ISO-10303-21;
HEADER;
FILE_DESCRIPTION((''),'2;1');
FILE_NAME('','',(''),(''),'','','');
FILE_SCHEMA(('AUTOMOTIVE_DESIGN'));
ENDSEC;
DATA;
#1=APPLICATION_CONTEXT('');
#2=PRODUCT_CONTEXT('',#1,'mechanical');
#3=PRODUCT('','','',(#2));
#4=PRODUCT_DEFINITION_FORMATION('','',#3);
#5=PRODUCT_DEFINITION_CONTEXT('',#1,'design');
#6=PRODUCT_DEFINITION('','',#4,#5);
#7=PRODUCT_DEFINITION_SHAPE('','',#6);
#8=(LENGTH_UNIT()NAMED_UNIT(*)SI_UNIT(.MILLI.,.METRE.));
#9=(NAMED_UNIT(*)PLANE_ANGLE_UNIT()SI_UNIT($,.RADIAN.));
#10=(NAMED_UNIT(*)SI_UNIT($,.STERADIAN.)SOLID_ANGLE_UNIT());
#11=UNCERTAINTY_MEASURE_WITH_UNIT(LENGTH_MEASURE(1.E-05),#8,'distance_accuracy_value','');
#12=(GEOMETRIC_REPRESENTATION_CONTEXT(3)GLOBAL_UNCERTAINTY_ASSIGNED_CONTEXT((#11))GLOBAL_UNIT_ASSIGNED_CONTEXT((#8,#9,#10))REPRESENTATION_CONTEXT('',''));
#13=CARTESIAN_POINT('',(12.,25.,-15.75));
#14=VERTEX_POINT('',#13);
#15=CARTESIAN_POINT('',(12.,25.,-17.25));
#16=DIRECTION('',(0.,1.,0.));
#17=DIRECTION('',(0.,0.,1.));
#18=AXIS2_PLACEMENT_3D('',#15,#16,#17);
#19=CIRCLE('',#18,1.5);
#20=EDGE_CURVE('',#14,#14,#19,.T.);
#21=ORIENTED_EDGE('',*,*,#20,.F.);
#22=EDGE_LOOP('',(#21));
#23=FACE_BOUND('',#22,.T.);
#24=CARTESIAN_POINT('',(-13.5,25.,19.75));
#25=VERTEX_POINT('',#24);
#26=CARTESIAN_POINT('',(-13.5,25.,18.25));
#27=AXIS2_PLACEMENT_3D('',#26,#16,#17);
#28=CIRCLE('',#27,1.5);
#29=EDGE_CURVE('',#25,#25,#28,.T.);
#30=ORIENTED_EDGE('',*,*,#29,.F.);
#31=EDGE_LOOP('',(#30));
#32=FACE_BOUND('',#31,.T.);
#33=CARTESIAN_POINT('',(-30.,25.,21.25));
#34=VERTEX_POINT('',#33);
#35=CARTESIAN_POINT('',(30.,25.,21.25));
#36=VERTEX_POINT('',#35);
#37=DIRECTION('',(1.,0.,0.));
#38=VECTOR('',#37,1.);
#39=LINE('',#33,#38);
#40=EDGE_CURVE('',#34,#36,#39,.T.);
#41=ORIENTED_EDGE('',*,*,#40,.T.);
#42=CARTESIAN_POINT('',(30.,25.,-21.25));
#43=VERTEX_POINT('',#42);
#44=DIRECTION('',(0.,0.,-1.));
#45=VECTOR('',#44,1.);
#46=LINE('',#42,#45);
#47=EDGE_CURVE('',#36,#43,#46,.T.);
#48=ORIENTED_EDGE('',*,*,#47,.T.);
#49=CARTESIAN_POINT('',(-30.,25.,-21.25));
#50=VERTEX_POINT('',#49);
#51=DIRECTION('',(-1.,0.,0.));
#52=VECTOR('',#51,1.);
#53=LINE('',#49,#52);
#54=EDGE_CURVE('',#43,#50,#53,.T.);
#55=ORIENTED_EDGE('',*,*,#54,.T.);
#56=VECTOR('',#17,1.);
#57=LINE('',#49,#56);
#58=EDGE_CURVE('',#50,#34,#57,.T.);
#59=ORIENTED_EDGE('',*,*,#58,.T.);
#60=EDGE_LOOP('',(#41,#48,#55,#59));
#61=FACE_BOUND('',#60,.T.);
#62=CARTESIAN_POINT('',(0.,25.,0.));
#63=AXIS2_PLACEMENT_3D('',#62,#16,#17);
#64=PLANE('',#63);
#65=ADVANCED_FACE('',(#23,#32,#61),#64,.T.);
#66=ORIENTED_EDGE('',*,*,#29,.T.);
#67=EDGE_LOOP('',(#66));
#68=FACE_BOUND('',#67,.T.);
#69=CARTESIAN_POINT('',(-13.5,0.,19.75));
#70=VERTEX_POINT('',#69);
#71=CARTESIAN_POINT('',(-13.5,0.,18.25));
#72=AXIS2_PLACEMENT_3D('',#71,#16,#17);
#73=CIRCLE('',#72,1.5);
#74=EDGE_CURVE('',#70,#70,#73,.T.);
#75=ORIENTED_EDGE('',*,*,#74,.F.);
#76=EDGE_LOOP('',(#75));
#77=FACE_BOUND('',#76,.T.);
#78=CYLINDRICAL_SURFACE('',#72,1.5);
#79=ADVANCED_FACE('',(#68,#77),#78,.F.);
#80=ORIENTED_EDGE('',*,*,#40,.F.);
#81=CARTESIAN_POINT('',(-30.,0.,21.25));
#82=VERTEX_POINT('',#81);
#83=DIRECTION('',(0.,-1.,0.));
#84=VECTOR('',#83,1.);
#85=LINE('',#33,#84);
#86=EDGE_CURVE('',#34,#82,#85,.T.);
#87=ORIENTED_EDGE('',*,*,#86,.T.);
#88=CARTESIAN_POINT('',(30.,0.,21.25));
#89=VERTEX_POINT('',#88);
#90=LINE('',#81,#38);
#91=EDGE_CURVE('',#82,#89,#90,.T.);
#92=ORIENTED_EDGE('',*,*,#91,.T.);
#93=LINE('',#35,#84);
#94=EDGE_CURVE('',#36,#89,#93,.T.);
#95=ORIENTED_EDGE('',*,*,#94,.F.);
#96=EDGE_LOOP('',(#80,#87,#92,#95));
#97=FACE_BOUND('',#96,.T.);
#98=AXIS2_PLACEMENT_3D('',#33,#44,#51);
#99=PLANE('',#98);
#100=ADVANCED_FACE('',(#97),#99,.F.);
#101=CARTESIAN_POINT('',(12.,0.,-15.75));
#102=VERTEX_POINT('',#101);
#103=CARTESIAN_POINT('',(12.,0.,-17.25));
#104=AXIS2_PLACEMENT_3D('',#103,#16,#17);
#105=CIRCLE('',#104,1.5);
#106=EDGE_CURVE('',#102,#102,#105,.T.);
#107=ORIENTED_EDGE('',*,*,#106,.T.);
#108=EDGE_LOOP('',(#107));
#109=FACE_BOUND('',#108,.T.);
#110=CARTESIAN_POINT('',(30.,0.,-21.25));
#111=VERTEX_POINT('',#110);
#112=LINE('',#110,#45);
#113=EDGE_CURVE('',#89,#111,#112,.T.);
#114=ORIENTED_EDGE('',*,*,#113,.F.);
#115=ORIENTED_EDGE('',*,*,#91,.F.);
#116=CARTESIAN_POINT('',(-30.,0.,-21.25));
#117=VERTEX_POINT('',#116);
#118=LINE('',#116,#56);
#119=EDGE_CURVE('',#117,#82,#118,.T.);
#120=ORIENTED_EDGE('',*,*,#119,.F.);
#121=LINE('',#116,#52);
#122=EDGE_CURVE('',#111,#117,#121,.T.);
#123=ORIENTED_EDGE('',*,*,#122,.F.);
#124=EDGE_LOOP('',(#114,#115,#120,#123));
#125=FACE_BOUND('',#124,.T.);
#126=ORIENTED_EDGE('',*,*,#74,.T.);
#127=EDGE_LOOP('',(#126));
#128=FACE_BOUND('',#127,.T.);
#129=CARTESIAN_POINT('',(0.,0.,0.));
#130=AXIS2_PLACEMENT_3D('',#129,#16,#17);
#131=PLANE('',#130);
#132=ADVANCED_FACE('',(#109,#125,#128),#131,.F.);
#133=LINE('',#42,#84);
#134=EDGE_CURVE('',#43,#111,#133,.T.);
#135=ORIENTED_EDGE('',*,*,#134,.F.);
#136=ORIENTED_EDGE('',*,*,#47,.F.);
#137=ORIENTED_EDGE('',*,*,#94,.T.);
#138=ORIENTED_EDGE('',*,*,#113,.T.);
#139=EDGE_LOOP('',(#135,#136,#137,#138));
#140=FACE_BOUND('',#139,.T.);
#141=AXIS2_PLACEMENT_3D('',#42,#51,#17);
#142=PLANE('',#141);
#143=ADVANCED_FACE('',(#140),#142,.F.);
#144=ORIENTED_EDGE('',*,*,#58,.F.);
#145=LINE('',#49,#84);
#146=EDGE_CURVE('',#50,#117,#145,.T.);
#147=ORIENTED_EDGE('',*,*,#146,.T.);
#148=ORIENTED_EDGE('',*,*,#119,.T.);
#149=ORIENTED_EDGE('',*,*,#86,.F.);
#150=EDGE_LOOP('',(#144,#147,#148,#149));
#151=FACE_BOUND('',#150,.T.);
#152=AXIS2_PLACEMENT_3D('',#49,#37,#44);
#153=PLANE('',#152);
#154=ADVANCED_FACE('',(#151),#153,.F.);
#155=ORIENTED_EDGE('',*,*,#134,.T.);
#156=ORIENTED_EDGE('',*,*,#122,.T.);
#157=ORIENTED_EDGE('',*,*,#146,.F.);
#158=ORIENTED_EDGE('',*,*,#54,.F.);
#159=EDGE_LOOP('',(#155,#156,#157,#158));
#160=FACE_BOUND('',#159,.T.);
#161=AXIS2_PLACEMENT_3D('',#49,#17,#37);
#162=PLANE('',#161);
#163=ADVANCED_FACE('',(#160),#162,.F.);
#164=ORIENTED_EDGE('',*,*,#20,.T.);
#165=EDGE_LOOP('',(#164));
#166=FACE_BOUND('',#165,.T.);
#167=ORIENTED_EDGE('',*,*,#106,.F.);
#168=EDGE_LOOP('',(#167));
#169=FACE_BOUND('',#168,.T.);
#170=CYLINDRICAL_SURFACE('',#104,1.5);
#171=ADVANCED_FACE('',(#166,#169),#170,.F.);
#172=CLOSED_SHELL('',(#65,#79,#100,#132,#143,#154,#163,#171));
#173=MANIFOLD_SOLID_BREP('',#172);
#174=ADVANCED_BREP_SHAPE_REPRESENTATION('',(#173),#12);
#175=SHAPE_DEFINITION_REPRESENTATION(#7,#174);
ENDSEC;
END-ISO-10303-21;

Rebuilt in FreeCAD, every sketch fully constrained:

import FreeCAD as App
import Part
import Sketcher
from FreeCAD import Vector
Q = App.Units.Quantity

doc = App.newDocument("Part")
params = doc.addObject("Spreadsheet::Sheet", "Params")
for row, (alias, value) in enumerate([
    ("sketch1_width", "60 mm"),
    ("sketch1_height", "42.5 mm"),
    ("pad1_length", "25 mm"),
    ("sketch2_diameter", "3 mm"),
], start=1):
    params.set(f"A{row}", alias)
    params.set(f"B{row}", "=" + value)
    params.setAlias(f"B{row}", alias)

body = doc.addObject("PartDesign::Body", "Body")

# Sketch on XZ plane
sketch1 = doc.addObject("Sketcher::SketchObject", "Sketch")
body.addObject(sketch1)
sketch1.AttachmentSupport = (doc.XZ_Plane, [""])
sketch1.MapMode = "FlatFace"
sketch1.addGeometry([
    Part.LineSegment(Vector(-30, -21, 0), Vector(-30, 21, 0)),
    Part.LineSegment(Vector(-30, 21, 0), Vector(30, 21, 0)),
    Part.LineSegment(Vector(30, 21, 0), Vector(30, -21, 0)),
    Part.LineSegment(Vector(30, -21, 0), Vector(-30, -21, 0)),
], False)
sketch1.addConstraint([
    Sketcher.Constraint("Coincident", 0, 2, 1, 1),
    Sketcher.Constraint("Coincident", 1, 2, 2, 1),
    Sketcher.Constraint("Coincident", 2, 2, 3, 1),
    Sketcher.Constraint("Coincident", 3, 2, 0, 1),
    Sketcher.Constraint("Vertical", 0),
    Sketcher.Constraint("Horizontal", 1),
    Sketcher.Constraint("Vertical", 2),
    Sketcher.Constraint("Horizontal", 3),
    Sketcher.Constraint("Symmetric", 0, 2, 2, 2, -1, 1),
    Sketcher.Constraint("DistanceX", 1, 1, 1, 2, Q("60 mm")),
    Sketcher.Constraint("DistanceY", 0, 1, 0, 2, Q("42.5 mm")),
])
sketch1.setExpression("Constraints[9]", "Params.sketch1_width")
sketch1.setExpression("Constraints[10]", "Params.sketch1_height")
pad1 = doc.addObject("PartDesign::Pad", "Pad")
body.addObject(pad1)
pad1.Profile = sketch1
pad1.setExpression("Length", "Params.pad1_length")
pad1.Reversed = True

# Sketch on XZ plane
sketch2 = doc.addObject("Sketcher::SketchObject", "Sketch001")
body.addObject(sketch2)
sketch2.AttachmentSupport = (doc.XZ_Plane, [""])
sketch2.MapMode = "FlatFace"
sketch2.AttachmentOffset = App.Placement(Vector(0, 0, -25), App.Rotation())
sketch2.addGeometry([
    Part.Circle(Vector(12, -17.2, 0), Vector(0, 0, 1), 1.5),
    Part.Circle(Vector(-13.5, 18.2, 0), Vector(0, 0, 1), 1.5),
], False)
sketch2.addConstraint([
    Sketcher.Constraint("Equal", 0, 1),
    Sketcher.Constraint("Diameter", 0, Q("3 mm")),
    Sketcher.Constraint("DistanceX", -1, 1, 0, 3, Q("12 mm")),
    Sketcher.Constraint("DistanceX", 1, 3, -1, 1, Q("13.5 mm")),
    Sketcher.Constraint("DistanceY", 0, 3, 1, 3, Q("35.5 mm")),
    Sketcher.Constraint("DistanceY", 0, 3, -1, 1, Q("17.25 mm")),
])
sketch2.setExpression("Constraints[1]", "Params.sketch2_diameter")
pocket1 = doc.addObject("PartDesign::Pocket", "Pocket")
body.addObject(pocket1)
pocket1.Profile = sketch2
pocket1.Type = "ThroughAll"
pocket1.Reversed = True

doc.recompute()
